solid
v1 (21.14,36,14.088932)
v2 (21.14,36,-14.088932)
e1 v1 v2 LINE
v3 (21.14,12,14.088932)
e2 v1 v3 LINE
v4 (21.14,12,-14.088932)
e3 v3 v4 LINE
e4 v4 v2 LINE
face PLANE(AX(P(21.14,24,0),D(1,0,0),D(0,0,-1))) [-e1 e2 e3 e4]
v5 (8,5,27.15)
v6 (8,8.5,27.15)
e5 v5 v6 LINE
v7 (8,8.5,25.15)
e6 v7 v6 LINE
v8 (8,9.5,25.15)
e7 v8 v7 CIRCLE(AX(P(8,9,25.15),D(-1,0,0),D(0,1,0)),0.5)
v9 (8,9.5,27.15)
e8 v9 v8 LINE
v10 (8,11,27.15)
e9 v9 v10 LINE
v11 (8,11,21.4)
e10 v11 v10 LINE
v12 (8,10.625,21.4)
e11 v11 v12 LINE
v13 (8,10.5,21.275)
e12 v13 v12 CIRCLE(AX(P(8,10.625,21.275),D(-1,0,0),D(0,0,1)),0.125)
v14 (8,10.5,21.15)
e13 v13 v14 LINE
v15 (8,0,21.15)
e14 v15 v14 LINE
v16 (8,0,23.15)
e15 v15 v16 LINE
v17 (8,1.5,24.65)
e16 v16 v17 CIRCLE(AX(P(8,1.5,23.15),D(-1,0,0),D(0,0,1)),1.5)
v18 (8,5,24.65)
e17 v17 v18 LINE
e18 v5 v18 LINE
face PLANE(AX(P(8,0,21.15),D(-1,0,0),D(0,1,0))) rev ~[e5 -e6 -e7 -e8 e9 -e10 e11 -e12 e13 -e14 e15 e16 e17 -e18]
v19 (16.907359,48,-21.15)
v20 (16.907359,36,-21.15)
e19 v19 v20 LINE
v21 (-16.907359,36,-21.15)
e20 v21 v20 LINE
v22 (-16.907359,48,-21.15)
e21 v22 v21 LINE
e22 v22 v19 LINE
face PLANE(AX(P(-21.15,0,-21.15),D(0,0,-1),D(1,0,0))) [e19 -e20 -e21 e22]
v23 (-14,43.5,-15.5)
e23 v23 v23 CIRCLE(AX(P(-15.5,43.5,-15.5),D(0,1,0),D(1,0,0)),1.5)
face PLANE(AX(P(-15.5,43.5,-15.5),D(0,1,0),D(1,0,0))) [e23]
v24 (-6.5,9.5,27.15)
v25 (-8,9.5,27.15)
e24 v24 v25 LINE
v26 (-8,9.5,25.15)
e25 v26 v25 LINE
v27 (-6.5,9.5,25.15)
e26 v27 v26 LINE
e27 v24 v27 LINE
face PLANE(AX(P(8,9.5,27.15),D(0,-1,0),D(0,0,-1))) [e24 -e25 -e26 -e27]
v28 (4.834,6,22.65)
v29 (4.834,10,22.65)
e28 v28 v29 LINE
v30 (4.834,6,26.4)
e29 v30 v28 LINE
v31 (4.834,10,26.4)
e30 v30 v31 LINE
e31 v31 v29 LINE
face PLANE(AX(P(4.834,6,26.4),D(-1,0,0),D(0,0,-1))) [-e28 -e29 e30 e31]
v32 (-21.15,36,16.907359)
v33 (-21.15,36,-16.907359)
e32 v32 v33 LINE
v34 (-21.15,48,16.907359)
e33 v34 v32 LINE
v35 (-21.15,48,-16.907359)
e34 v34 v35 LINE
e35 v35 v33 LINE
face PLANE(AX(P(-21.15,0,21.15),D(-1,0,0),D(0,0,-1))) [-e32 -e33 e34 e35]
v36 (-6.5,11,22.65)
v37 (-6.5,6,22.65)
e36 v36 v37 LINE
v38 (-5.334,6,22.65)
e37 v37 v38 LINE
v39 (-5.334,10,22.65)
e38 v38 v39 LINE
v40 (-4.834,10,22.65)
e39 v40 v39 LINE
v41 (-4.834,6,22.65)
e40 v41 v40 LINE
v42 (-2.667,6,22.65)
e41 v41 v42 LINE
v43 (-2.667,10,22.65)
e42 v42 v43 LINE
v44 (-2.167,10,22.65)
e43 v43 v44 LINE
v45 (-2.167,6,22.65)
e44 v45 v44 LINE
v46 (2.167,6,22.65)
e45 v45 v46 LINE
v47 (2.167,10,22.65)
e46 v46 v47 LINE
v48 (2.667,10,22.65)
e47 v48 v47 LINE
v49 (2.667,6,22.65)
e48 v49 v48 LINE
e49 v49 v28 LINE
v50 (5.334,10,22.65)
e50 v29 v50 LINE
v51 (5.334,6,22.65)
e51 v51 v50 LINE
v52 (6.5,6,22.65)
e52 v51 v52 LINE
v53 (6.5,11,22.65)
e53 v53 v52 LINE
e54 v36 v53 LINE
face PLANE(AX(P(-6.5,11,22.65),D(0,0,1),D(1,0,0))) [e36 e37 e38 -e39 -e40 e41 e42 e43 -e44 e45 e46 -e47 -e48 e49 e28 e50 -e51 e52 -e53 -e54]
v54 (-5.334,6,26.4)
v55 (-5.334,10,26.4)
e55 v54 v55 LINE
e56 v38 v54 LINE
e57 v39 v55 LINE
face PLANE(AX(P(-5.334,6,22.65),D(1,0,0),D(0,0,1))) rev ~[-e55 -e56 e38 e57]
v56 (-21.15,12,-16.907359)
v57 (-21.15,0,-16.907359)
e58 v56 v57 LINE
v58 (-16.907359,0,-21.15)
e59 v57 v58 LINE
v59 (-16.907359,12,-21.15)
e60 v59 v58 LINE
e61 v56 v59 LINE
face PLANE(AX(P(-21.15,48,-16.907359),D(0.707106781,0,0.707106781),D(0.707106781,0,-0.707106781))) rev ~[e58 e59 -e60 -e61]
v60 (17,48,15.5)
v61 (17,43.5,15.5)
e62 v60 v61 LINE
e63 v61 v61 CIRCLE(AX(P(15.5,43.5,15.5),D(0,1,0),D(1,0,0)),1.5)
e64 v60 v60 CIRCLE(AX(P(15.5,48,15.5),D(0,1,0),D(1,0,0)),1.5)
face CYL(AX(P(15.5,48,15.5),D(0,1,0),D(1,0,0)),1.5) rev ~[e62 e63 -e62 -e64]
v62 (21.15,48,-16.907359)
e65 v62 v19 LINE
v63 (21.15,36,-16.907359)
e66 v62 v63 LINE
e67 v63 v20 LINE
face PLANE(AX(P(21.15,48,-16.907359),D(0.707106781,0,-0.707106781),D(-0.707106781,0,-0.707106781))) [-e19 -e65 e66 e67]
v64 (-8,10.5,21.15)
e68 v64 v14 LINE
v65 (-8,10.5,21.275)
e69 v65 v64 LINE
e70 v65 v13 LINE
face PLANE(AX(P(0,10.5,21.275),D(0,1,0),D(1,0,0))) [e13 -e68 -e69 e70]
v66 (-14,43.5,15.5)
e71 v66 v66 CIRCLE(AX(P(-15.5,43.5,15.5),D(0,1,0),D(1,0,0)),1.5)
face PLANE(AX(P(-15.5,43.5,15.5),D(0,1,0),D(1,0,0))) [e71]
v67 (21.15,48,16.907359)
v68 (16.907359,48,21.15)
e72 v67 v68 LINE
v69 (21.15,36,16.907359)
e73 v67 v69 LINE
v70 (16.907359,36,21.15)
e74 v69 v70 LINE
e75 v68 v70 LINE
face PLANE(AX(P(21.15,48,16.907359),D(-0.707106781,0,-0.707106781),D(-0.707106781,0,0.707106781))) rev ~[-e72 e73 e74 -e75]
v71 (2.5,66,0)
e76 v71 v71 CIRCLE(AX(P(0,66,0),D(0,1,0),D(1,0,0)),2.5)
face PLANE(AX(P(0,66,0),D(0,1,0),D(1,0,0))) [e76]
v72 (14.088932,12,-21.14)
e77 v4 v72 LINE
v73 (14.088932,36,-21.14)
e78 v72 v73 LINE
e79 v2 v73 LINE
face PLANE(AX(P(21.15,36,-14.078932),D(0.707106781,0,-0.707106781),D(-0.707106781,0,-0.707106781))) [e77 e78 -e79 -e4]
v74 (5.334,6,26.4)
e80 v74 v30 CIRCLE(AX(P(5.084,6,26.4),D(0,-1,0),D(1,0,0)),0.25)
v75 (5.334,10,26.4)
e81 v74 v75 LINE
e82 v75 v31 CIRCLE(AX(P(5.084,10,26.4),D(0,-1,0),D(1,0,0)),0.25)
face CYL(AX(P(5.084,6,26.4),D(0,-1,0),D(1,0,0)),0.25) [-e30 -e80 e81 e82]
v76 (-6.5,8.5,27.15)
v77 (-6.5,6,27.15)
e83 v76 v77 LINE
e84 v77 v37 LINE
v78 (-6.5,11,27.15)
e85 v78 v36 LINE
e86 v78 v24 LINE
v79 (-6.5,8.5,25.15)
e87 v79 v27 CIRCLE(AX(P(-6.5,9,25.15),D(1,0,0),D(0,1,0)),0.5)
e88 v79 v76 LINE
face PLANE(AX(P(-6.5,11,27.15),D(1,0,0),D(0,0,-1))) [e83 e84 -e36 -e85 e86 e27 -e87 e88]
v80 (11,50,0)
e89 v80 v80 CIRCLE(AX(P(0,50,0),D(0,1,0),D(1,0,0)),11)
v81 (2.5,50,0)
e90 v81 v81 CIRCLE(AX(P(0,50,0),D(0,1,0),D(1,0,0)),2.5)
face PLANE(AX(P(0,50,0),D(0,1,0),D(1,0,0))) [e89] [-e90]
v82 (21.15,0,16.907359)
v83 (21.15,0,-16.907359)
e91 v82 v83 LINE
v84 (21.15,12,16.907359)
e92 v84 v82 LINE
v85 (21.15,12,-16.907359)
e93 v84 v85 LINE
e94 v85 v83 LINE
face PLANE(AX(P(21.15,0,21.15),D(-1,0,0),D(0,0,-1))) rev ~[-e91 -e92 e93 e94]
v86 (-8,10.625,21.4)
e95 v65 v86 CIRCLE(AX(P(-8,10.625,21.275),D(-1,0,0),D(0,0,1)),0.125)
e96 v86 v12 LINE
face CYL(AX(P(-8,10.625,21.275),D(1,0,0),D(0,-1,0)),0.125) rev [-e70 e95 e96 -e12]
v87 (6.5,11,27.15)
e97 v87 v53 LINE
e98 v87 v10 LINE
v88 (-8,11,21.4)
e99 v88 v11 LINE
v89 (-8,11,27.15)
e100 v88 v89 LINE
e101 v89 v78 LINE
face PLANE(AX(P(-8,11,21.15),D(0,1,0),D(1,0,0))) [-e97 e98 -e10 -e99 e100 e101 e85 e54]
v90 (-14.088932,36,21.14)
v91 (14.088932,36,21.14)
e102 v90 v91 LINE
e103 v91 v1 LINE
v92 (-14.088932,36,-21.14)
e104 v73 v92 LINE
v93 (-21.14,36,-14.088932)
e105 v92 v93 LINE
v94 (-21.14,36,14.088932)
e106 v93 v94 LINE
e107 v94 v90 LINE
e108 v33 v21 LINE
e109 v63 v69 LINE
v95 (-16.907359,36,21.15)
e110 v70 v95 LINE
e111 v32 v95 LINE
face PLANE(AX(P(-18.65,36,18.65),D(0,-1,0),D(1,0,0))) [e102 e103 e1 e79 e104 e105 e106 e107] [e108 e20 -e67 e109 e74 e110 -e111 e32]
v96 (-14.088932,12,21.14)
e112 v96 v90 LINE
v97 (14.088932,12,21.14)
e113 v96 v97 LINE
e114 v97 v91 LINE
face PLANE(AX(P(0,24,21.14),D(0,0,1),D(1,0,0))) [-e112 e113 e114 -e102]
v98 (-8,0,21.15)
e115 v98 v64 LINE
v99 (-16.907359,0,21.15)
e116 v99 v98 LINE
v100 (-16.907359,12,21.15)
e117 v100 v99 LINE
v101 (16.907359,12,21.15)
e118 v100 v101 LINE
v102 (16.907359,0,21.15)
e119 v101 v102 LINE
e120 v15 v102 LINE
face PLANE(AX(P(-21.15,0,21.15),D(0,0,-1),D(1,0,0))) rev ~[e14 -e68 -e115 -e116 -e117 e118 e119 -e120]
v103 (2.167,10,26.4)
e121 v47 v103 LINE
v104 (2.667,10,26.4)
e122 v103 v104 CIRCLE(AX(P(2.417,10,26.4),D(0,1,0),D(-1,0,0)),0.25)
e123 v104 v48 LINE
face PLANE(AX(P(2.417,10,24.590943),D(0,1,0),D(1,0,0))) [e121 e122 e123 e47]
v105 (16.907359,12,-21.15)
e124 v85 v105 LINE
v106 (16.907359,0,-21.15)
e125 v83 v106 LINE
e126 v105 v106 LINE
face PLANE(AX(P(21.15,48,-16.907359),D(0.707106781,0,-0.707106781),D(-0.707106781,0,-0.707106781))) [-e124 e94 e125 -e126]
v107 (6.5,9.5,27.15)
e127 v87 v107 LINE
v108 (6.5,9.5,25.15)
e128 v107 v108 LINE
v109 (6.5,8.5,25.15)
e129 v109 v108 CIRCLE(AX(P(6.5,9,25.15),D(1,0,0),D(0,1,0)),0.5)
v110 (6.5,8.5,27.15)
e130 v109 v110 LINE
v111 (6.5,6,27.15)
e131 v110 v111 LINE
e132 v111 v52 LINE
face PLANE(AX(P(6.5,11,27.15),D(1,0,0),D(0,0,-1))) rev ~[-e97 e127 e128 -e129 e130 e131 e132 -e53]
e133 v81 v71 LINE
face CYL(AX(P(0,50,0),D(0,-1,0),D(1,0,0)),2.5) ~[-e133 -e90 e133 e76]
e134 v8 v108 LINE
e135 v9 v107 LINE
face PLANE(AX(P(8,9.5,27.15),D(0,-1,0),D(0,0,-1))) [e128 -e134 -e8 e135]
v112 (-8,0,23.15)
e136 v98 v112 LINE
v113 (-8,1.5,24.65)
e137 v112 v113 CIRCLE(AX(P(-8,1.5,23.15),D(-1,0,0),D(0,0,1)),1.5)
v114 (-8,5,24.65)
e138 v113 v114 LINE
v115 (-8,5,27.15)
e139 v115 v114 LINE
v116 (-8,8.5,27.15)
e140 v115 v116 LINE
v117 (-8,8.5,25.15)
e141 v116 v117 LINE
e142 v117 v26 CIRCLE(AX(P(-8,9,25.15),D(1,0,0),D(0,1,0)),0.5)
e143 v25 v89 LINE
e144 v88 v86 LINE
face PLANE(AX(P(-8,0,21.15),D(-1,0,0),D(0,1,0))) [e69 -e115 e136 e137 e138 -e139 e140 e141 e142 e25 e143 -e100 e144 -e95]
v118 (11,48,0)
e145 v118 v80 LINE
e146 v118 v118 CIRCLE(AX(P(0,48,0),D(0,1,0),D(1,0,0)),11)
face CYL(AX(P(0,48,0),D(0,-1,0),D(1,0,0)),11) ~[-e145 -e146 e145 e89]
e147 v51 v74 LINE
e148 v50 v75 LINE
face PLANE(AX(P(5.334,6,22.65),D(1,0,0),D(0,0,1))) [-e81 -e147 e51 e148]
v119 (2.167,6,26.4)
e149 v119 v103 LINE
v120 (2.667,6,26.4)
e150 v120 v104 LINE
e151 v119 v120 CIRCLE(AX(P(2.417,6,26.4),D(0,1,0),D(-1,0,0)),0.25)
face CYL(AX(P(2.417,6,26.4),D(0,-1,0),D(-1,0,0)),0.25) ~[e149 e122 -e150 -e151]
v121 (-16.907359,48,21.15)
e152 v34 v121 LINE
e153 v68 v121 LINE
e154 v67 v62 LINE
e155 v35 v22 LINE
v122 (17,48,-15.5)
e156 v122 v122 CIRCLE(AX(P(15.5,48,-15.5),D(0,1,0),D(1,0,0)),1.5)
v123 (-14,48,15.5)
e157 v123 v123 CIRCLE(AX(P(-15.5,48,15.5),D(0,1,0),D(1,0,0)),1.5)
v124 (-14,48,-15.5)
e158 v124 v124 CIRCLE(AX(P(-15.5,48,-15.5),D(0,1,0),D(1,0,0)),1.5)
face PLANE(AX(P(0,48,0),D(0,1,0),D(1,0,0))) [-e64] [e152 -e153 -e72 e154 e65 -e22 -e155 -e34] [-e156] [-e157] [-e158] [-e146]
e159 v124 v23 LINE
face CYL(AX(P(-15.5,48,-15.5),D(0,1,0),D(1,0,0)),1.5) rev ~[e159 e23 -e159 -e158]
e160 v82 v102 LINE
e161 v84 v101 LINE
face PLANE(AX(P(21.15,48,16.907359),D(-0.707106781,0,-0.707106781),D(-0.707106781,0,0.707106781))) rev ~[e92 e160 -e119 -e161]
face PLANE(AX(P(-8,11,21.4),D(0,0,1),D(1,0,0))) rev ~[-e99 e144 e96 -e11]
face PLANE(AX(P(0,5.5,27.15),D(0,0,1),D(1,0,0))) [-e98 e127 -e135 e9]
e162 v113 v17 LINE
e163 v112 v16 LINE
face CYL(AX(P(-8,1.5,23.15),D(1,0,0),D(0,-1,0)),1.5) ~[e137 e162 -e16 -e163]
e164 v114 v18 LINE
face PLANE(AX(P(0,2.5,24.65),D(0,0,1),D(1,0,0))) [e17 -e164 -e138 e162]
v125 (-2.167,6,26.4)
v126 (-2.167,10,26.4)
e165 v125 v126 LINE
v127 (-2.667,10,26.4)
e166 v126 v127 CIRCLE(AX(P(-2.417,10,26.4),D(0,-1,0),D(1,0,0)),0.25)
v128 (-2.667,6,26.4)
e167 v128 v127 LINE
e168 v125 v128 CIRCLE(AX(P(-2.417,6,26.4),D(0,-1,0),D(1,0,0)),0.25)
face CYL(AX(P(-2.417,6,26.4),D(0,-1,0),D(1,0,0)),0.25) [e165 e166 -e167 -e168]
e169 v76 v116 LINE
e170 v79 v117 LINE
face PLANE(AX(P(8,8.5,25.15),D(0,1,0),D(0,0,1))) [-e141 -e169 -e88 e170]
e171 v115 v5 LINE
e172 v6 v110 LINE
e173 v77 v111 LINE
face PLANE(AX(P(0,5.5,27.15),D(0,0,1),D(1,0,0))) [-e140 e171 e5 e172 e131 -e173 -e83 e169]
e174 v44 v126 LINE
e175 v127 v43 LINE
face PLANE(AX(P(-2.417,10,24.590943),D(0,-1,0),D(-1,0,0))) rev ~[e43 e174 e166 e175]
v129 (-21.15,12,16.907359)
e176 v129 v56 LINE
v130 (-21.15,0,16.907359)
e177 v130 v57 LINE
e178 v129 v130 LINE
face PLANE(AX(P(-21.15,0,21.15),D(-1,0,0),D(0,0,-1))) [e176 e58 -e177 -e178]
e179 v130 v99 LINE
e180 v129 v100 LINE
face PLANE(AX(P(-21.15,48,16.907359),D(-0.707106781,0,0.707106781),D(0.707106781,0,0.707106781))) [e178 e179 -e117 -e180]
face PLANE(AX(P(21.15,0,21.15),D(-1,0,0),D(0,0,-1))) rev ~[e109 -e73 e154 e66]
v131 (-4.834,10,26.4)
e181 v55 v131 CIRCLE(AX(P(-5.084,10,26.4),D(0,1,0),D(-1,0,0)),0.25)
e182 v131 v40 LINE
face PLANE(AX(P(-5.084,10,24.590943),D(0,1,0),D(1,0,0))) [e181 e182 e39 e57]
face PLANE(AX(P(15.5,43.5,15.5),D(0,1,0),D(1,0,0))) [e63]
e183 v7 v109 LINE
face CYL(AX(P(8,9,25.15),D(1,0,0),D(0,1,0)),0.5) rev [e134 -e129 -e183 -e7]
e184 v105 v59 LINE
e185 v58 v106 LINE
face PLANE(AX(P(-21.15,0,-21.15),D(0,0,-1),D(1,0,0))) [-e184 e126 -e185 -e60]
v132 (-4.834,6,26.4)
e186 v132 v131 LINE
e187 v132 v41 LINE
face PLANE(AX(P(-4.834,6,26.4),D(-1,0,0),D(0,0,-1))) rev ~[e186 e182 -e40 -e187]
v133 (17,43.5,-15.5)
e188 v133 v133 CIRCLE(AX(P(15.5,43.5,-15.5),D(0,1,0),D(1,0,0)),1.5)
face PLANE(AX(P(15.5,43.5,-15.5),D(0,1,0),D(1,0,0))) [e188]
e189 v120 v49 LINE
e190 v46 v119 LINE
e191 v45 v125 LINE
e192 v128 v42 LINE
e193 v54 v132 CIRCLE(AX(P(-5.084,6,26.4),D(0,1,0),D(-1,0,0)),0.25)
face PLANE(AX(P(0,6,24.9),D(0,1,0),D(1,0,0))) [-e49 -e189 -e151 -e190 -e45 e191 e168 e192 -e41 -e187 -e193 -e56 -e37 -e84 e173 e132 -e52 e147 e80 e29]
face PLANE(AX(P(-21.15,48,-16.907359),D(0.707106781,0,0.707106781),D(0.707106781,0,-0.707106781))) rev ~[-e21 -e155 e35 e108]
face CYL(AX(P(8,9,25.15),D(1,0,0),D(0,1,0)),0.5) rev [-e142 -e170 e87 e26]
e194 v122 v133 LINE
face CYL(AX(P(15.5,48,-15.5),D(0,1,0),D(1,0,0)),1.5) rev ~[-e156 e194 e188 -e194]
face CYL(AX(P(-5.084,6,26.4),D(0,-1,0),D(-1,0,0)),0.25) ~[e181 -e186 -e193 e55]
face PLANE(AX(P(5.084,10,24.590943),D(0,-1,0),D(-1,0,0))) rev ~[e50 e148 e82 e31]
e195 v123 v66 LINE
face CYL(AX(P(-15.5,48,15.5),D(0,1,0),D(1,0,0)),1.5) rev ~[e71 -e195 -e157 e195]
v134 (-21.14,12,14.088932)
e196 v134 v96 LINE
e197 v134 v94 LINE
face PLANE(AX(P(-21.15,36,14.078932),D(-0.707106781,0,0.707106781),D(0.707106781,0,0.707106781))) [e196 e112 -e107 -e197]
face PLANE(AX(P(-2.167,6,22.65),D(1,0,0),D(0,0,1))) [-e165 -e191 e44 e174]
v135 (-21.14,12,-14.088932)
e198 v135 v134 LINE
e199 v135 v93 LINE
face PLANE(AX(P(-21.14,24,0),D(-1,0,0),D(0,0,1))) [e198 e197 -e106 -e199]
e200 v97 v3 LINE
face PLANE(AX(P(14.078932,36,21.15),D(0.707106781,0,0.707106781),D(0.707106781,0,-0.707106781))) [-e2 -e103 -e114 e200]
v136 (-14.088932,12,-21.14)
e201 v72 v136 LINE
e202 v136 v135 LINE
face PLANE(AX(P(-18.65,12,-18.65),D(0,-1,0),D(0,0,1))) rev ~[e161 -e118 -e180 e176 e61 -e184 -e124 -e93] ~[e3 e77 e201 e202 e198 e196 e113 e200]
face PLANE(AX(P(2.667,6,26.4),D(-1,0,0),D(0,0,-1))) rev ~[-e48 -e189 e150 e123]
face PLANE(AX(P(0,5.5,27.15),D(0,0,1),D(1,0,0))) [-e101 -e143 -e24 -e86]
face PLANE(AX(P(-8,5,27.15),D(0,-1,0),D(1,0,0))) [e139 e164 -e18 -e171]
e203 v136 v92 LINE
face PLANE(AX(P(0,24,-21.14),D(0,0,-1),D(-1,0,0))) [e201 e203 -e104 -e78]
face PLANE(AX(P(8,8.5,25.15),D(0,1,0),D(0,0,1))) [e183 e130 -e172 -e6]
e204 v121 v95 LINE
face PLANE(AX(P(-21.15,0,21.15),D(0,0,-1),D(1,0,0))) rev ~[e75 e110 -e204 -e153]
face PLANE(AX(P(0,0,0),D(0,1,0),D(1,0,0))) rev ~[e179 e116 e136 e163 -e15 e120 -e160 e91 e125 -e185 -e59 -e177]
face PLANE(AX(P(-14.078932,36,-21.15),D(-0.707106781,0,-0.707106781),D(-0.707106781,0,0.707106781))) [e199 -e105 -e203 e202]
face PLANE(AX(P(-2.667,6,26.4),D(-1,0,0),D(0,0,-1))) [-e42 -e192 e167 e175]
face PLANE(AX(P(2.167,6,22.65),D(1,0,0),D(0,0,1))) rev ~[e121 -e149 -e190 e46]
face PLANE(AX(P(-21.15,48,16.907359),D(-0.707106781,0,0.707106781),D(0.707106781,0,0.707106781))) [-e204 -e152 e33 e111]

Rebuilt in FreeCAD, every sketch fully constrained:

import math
import FreeCAD as App
import Part
import Sketcher
Q = App.Units.Quantity


def edges_at(feature, points):
    """Names of the edges that pass closest to the given points."""
    edges = feature.Shape.Edges
    near = lambda p: min(range(len(edges)), key=lambda i: edges[i].distToShape(Part.Vertex(*p))[0])
    return sorted({f"Edge{near(p) + 1}" for p in points})

doc = App.newDocument("Part")
body = doc.addObject("PartDesign::Body", "Body")

# Sketch on XZ plane
sketch1 = doc.addObject("Sketcher::SketchObject", "Sketch")
body.addObject(sketch1)
sketch1.AttachmentSupport = (doc.XZ_Plane, [""])
sketch1.MapMode = "FlatFace"
sketch1.addGeometry([
    Part.LineSegment(App.Vector(-21.15, -21.15, 0), App.Vector(-21.15, 21.15, 0)),
    Part.LineSegment(App.Vector(-21.15, 21.15, 0), App.Vector(21.15, 21.15, 0)),
    Part.LineSegment(App.Vector(21.15, 21.15, 0), App.Vector(21.15, -21.15, 0)),
    Part.LineSegment(App.Vector(21.15, -21.15, 0), App.Vector(-21.15, -21.15, 0)),
], False)
sketch1.addConstraint([
    Sketcher.Constraint("Coincident", 0, 2, 1, 1),
    Sketcher.Constraint("Coincident", 1, 2, 2, 1),
    Sketcher.Constraint("Coincident", 2, 2, 3, 1),
    Sketcher.Constraint("Coincident", 3, 2, 0, 1),
    Sketcher.Constraint("Vertical", 0),
    Sketcher.Constraint("Horizontal", 1),
    Sketcher.Constraint("Vertical", 2),
    Sketcher.Constraint("Horizontal", 3),
    Sketcher.Constraint("Symmetric", 0, 2, 2, 2, -1, 1),
    Sketcher.Constraint("Equal", 3, 0),
    Sketcher.Constraint("DistanceX", 1, 1, 1, 2, Q("42.3 mm")),
])
pad1 = doc.addObject("PartDesign::Pad", "Pad")
body.addObject(pad1)
pad1.Profile = sketch1
pad1.Length = 48
pad1.Reversed = True

# Sketch on XZ plane
sketch2 = doc.addObject("Sketcher::SketchObject", "Sketch001")
body.addObject(sketch2)
sketch2.AttachmentSupport = (doc.XZ_Plane, [""])
sketch2.MapMode = "FlatFace"
sketch2.AttachmentOffset = App.Placement(App.Vector(0, 0, -48), App.Rotation())
sketch2.addGeometry(Part.Circle(App.Vector(0, 0, 0), App.Vector(0, 0, 1), 11), False)
sketch2.addConstraint([
    Sketcher.Constraint("Coincident", 0, 3, -1, 1),
    Sketcher.Constraint("Diameter", 0, Q("22 mm")),
])
pad2 = doc.addObject("PartDesign::Pad", "Pad001")
body.addObject(pad2)
pad2.Profile = sketch2
pad2.Length = 2
pad2.Reversed = True

# Sketch on XZ plane
sketch3 = doc.addObject("Sketcher::SketchObject", "Sketch002")
body.addObject(sketch3)
sketch3.AttachmentSupport = (doc.XZ_Plane, [""])
sketch3.MapMode = "FlatFace"
sketch3.AttachmentOffset = App.Placement(App.Vector(0, 0, -50), App.Rotation())
sketch3.addGeometry(Part.Circle(App.Vector(0, 0, 0), App.Vector(0, 0, 1), 2.5), False)
sketch3.addConstraint([
    Sketcher.Constraint("Coincident", 0, 3, -1, 1),
    Sketcher.Constraint("Diameter", 0, Q("5 mm")),
])
pad3 = doc.addObject("PartDesign::Pad", "Pad002")
body.addObject(pad3)
pad3.Profile = sketch3
pad3.Length = 16
pad3.Reversed = True

# Sketch on XZ plane
sketch4 = doc.addObject("Sketcher::SketchObject", "Sketch003")
body.addObject(sketch4)
sketch4.AttachmentSupport = (doc.XZ_Plane, [""])
sketch4.MapMode = "FlatFace"
sketch4.AttachmentOffset = App.Placement(App.Vector(0, 0, -48), App.Rotation())
sketch4.addGeometry([
    Part.LineSegment(App.Vector(-21.15, -16.907359, 0), App.Vector(-16.907359, -21.15, 0)),  # 0
    Part.LineSegment(App.Vector(-16.907359, -21.15, 0), App.Vector(-21.15, -21.15, 0)),  # 1
    Part.LineSegment(App.Vector(-21.15, -21.15, 0), App.Vector(-21.15, -16.907359, 0)),  # 2
    Part.LineSegment(App.Vector(21.15, -16.907359, 0), App.Vector(21.15, -21.15, 0)),  # 3
    Part.LineSegment(App.Vector(21.15, -21.15, 0), App.Vector(16.907359, -21.15, 0)),  # 4
    Part.LineSegment(App.Vector(16.907359, -21.15, 0), App.Vector(21.15, -16.907359, 0)),  # 5
    Part.LineSegment(App.Vector(21.15, 16.907359, 0), App.Vector(16.907359, 21.15, 0)),  # 6
    Part.LineSegment(App.Vector(16.907359, 21.15, 0), App.Vector(21.15, 21.15, 0)),  # 7
    Part.LineSegment(App.Vector(21.15, 21.15, 0), App.Vector(21.15, 16.907359, 0)),  # 8
    Part.LineSegment(App.Vector(-21.15, 16.907359, 0), App.Vector(-21.15, 21.15, 0)),  # 9
    Part.LineSegment(App.Vector(-21.15, 21.15, 0), App.Vector(-16.907359, 21.15, 0)),  # 10
    Part.LineSegment(App.Vector(-16.907359, 21.15, 0), App.Vector(-21.15, 16.907359, 0)),  # 11
], False)
sketch4.addConstraint([
    Sketcher.Constraint("Coincident", 0, 2, 1, 1),
    Sketcher.Constraint("Coincident", 1, 2, 2, 1),
    Sketcher.Constraint("Coincident", 2, 2, 0, 1),
    Sketcher.Constraint("Coincident", 3, 2, 4, 1),
    Sketcher.Constraint("Coincident", 4, 2, 5, 1),
    Sketcher.Constraint("Coincident", 5, 2, 3, 1),
    Sketcher.Constraint("Coincident", 6, 2, 7, 1),
    Sketcher.Constraint("Coincident", 7, 2, 8, 1),
    Sketcher.Constraint("Coincident", 8, 2, 6, 1),
    Sketcher.Constraint("Coincident", 9, 2, 10, 1),
    Sketcher.Constraint("Coincident", 10, 2, 11, 1),
    Sketcher.Constraint("Coincident", 11, 2, 9, 1),
    Sketcher.Constraint("Horizontal", 1),
    Sketcher.Constraint("Vertical", 2),
    Sketcher.Constraint("Vertical", 3),
    Sketcher.Constraint("Horizontal", 4),
    Sketcher.Constraint("Horizontal", 7),
    Sketcher.Constraint("Vertical", 8),
    Sketcher.Constraint("Vertical", 9),
    Sketcher.Constraint("Horizontal", 10),
    Sketcher.Constraint("Symmetric", 0, 2, 6, 2, -1, 1),
    Sketcher.Constraint("Symmetric", 2, 2, 8, 2, -1, 1),
    Sketcher.Constraint("Symmetric", 3, 2, 9, 2, -1, 1),
    Sketcher.Constraint("Symmetric", 1, 2, 3, 2, -2),
    Sketcher.Constraint("Perpendicular", 0, 5),
    Sketcher.Constraint("Perpendicular", 6, 11),
    Sketcher.Constraint("Horizontal", 2, 2, 5, 2),
    Sketcher.Constraint("Horizontal", 8, 2, 11, 2),
    Sketcher.Constraint("Vertical", 4, 2, 6, 2),
    Sketcher.Constraint("Distance", 0, Q("6 mm")),
    Sketcher.Constraint("DistanceX", 1, 2, 3, 2, Q("42.3 mm")),
    Sketcher.Constraint("DistanceY", 4, 2, 6, 2, Q("42.3 mm")),
])
pocket1 = doc.addObject("PartDesign::Pocket", "Pocket")
body.addObject(pocket1)
pocket1.Profile = sketch4
pocket1.Type = "ThroughAll"
pocket1.Midplane = True

# Sketch on YZ plane
sketch5 = doc.addObject("Sketcher::SketchObject", "Sketch004")
body.addObject(sketch5)
sketch5.AttachmentSupport = (doc.YZ_Plane, [""])
sketch5.MapMode = "FlatFace"
sketch5.AttachmentOffset = App.Placement(App.Vector(0, 0, 21.15), App.Rotation())
sketch5.addGeometry([
    Part.LineSegment(App.Vector(36, 16.907359, 0), App.Vector(12, 16.907359, 0)),
    Part.LineSegment(App.Vector(12, 16.907359, 0), App.Vector(12, -16.907359, 0)),
    Part.LineSegment(App.Vector(12, -16.907359, 0), App.Vector(36, -16.907359, 0)),
    Part.LineSegment(App.Vector(36, -16.907359, 0), App.Vector(36, 16.907359, 0)),
], False)
sketch5.addConstraint([
    Sketcher.Constraint("Coincident", 0, 2, 1, 1),
    Sketcher.Constraint("Coincident", 1, 2, 2, 1),
    Sketcher.Constraint("Coincident", 2, 2, 3, 1),
    Sketcher.Constraint("Coincident", 3, 2, 0, 1),
    Sketcher.Constraint("Horizontal", 0),
    Sketcher.Constraint("Vertical", 1),
    Sketcher.Constraint("Horizontal", 2),
    Sketcher.Constraint("Vertical", 3),
    Sketcher.Constraint("DistanceX", 0, 2, 0, 1, Q("24 mm")),
    Sketcher.Constraint("DistanceX", -1, 1, 0, 2, Q("12 mm")),
    Sketcher.Constraint("DistanceY", 1, 2, 1, 1, Q("33.814719 mm")),
    Sketcher.Constraint("DistanceY", -1, 1, 0, 2, Q("16.907359 mm")),
])
pocket2 = doc.addObject("PartDesign::Pocket", "Pocket001")
body.addObject(pocket2)
pocket2.Profile = sketch5
pocket2.Length = 0.01

# Sketch on XZ plane
sketch6 = doc.addObject("Sketcher::SketchObject", "Sketch005")
body.addObject(sketch6)
sketch6.AttachmentSupport = (doc.XZ_Plane, [""])
sketch6.MapMode = "FlatFace"
sketch6.AttachmentOffset = App.Placement(App.Vector(0, 0, -36), App.Rotation())
sketch6.addGeometry([
    Part.LineSegment(App.Vector(14.078932, -21.15, 0), App.Vector(21.15, -14.078932, 0)),
    Part.LineSegment(App.Vector(21.15, -14.078932, 0), App.Vector(21.15, -21.15, 0)),
    Part.LineSegment(App.Vector(21.15, -21.15, 0), App.Vector(14.078932, -21.15, 0)),
], False)
sketch6.addConstraint([
    Sketcher.Constraint("Coincident", 0, 2, 1, 1),
    Sketcher.Constraint("Coincident", 1, 2, 2, 1),
    Sketcher.Constraint("Coincident", 2, 2, 0, 1),
    Sketcher.Constraint("Vertical", 1),
    Sketcher.Constraint("Horizontal", 2),
    Sketcher.Constraint("Equal", 2, 1),
    Sketcher.Constraint("Distance", 0, Q("10 mm")),
    Sketcher.Constraint("DistanceX", -1, 1, 0, 2, Q("21.15 mm")),
    Sketcher.Constraint("DistanceY", 1, 2, -1, 1, Q("21.15 mm")),
])
pocket3 = doc.addObject("PartDesign::Pocket", "Pocket002")
body.addObject(pocket3)
pocket3.Profile = sketch6
pocket3.Length = 24
pocket3.Reversed = True
doc.recompute()

polarpattern = doc.addObject("PartDesign::PolarPattern", "PolarPattern")
body.addObject(polarpattern)
polarpattern.Originals = [pocket2, pocket3]
polarpattern.Axis = (doc.Y_Axis, [""])
polarpattern.Angle = 360
polarpattern.Occurrences = 4
body.Tip = polarpattern

# Sketch on XZ plane
sketch7 = doc.addObject("Sketcher::SketchObject", "Sketch006")
body.addObject(sketch7)
sketch7.AttachmentSupport = (doc.XZ_Plane, [""])
sketch7.MapMode = "FlatFace"
sketch7.AttachmentOffset = App.Placement(App.Vector(0, 0, -48), App.Rotation())
sketch7.addGeometry([
    Part.Circle(App.Vector(15.5, -15.5, 0), App.Vector(0, 0, 1), 1.5),
    Part.Circle(App.Vector(15.5, 15.5, 0), App.Vector(0, 0, 1), 1.5),
    Part.Circle(App.Vector(-15.5, 15.5, 0), App.Vector(0, 0, 1), 1.5),
    Part.Circle(App.Vector(-15.5, -15.5, 0), App.Vector(0, 0, 1), 1.5),
], False)
sketch7.addConstraint([
    Sketcher.Constraint("Equal", 0, 1),
    Sketcher.Constraint("Equal", 1, 2),
    Sketcher.Constraint("Equal", 2, 3),
    Sketcher.Constraint("Symmetric", 0, 3, 2, 3, -1, 1),
    Sketcher.Constraint("Symmetric", 1, 3, 3, 3, -1, 1),
    Sketcher.Constraint("Symmetric", 1, 3, 2, 3, -2),
    Sketcher.Constraint("Diameter", 0, Q("3 mm")),
    Sketcher.Constraint("DistanceY", 0, 3, 1, 3, Q("31 mm")),
    Sketcher.Constraint("DistanceX", 2, 3, 1, 3, Q("31 mm")),
])
pocket4 = doc.addObject("PartDesign::Pocket", "Pocket003")
body.addObject(pocket4)
pocket4.Profile = sketch7
pocket4.Length = 4.5
pocket4.Reversed = True

# Sketch on XY plane
sketch8 = doc.addObject("Sketcher::SketchObject", "Sketch007")
body.addObject(sketch8)
sketch8.AttachmentSupport = (doc.XY_Plane, [""])
sketch8.MapMode = "FlatFace"
sketch8.AttachmentOffset = App.Placement(App.Vector(0, 0, 21.15), App.Rotation())
sketch8.addGeometry([
    Part.LineSegment(App.Vector(-8, 11, 0), App.Vector(-8, 0, 0)),
    Part.LineSegment(App.Vector(-8, 0, 0), App.Vector(8, 0, 0)),
    Part.LineSegment(App.Vector(8, 0, 0), App.Vector(8, 11, 0)),
    Part.LineSegment(App.Vector(8, 11, 0), App.Vector(-8, 11, 0)),
], False)
sketch8.addConstraint([
    Sketcher.Constraint("Coincident", 0, 2, 1, 1),
    Sketcher.Constraint("Coincident", 1, 2, 2, 1),
    Sketcher.Constraint("Coincident", 2, 2, 3, 1),
    Sketcher.Constraint("Coincident", 3, 2, 0, 1),
    Sketcher.Constraint("Vertical", 0),
    Sketcher.Constraint("Horizontal", 1),
    Sketcher.Constraint("Vertical", 2),
    Sketcher.Constraint("Horizontal", 3),
    Sketcher.Constraint("Symmetric", 0, 2, 1, 2, -1, 1),
    Sketcher.Constraint("DistanceX", 1, 1, 1, 2, Q("16 mm")),
    Sketcher.Constraint("DistanceY", 0, 2, 0, 1, Q("11 mm")),
])
pad4 = doc.addObject("PartDesign::Pad", "Pad003")
body.addObject(pad4)
pad4.Profile = sketch8
pad4.Length = 6

# Sketch on XY plane
sketch9 = doc.addObject("Sketcher::SketchObject", "Sketch008")
body.addObject(sketch9)
sketch9.AttachmentSupport = (doc.XY_Plane, [""])
sketch9.MapMode = "FlatFace"
sketch9.AttachmentOffset = App.Placement(App.Vector(0, 0, 27.15), App.Rotation())
sketch9.addGeometry([
    Part.LineSegment(App.Vector(-8, 5, 0), App.Vector(-8, 0, 0)),
    Part.LineSegment(App.Vector(-8, 0, 0), App.Vector(8, 0, 0)),
    Part.LineSegment(App.Vector(8, 0, 0), App.Vector(8, 5, 0)),
    Part.LineSegment(App.Vector(8, 5, 0), App.Vector(-8, 5, 0)),
], False)
sketch9.addConstraint([
    Sketcher.Constraint("Coincident", 0, 2, 1, 1),
    Sketcher.Constraint("Coincident", 1, 2, 2, 1),
    Sketcher.Constraint("Coincident", 2, 2, 3, 1),
    Sketcher.Constraint("Coincident", 3, 2, 0, 1),
    Sketcher.Constraint("Vertical", 0),
    Sketcher.Constraint("Horizontal", 1),
    Sketcher.Constraint("Vertical", 2),
    Sketcher.Constraint("Horizontal", 3),
    Sketcher.Constraint("Symmetric", 0, 2, 1, 2, -1, 1),
    Sketcher.Constraint("DistanceX", 1, 1, 1, 2, Q("16 mm")),
    Sketcher.Constraint("DistanceY", 0, 2, 0, 1, Q("5 mm")),
])
pocket5 = doc.addObject("PartDesign::Pocket", "Pocket004")
body.addObject(pocket5)
pocket5.Profile = sketch9
pocket5.Length = 2.5
doc.recompute()

fillet = doc.addObject("PartDesign::Fillet", "Fillet")
body.addObject(fillet)
fillet.Base = (pocket5, edges_at(pocket5, [(0, 0, 24.65)]))
fillet.Radius = 1.5

# Sketch on XZ plane
sketch10 = doc.addObject("Sketcher::SketchObject", "Sketch009")
body.addObject(sketch10)
sketch10.AttachmentSupport = (doc.XZ_Plane, [""])
sketch10.MapMode = "FlatFace"
sketch10.AttachmentOffset = App.Placement(App.Vector(0, 0, -11), App.Rotation())
sketch10.addGeometry([
    Part.LineSegment(App.Vector(-6.5, 22.65, 0), App.Vector(-6.5, 27.15, 0)),
    Part.LineSegment(App.Vector(-6.5, 27.15, 0), App.Vector(6.5, 27.15, 0)),
    Part.LineSegment(App.Vector(6.5, 27.15, 0), App.Vector(6.5, 22.65, 0)),
    Part.LineSegment(App.Vector(6.5, 22.65, 0), App.Vector(-6.5, 22.65, 0)),
], False)
sketch10.addConstraint([
    Sketcher.Constraint("Coincident", 0, 2, 1, 1),
    Sketcher.Constraint("Coincident", 1, 2, 2, 1),
    Sketcher.Constraint("Coincident", 2, 2, 3, 1),
    Sketcher.Constraint("Coincident", 3, 2, 0, 1),
    Sketcher.Constraint("Vertical", 0),
    Sketcher.Constraint("Horizontal", 1),
    Sketcher.Constraint("Vertical", 2),
    Sketcher.Constraint("Horizontal", 3),
    Sketcher.Constraint("DistanceX", 1, 1, 1, 2, Q("13 mm")),
    Sketcher.Constraint("DistanceY", 0, 1, 0, 2, Q("4.5 mm")),
    Sketcher.Constraint("DistanceX", 0, 2, -1, 1, Q("6.5 mm")),
    Sketcher.Constraint("DistanceY", -1, 1, 0, 2, Q("27.15 mm")),
])
pocket6 = doc.addObject("PartDesign::Pocket", "Pocket005")
body.addObject(pocket6)
pocket6.Profile = sketch10
pocket6.Length = 5
pocket6.Reversed = True

# Sketch on YZ plane
sketch11 = doc.addObject("Sketcher::SketchObject", "Sketch010")
body.addObject(sketch11)
sketch11.AttachmentSupport = (doc.YZ_Plane, [""])
sketch11.MapMode = "FlatFace"
sketch11.AttachmentOffset = App.Placement(App.Vector(0, 0, 8), App.Rotation())
sketch11.addGeometry([
    Part.LineSegment(App.Vector(9.5, 25.15, 0), App.Vector(9.5, 27.15, 0)),
    Part.LineSegment(App.Vector(9.5, 27.15, 0), App.Vector(8.5, 27.15, 0)),
    Part.LineSegment(App.Vector(8.5, 27.15, 0), App.Vector(8.5, 25.15, 0)),
    Part.ArcOfCircle(Part.Circle(App.Vector(9, 25.15, 0), App.Vector(0, 0, 1), 0.5), math.radians(180), math.radians(360)),
], False)
sketch11.addConstraint([
    Sketcher.Constraint("Coincident", 0, 2, 1, 1),
    Sketcher.Constraint("Coincident", 1, 2, 2, 1),
    Sketcher.Constraint("Tangent", 2, 2, 3, 1),
    Sketcher.Constraint("Tangent", 3, 2, 0, 1),
    Sketcher.Constraint("Vertical", 0),
    Sketcher.Constraint("Horizontal", 1),
    Sketcher.Constraint("Vertical", 2),
    Sketcher.Constraint("Radius", 3, Q("0.5 mm")),
    Sketcher.Constraint("DistanceY", 0, 1, 0, 2, Q("2 mm")),
    Sketcher.Constraint("DistanceX", -1, 1, 3, 3, Q("9 mm")),
    Sketcher.Constraint("DistanceY", -1, 1, 3, 3, Q("25.15 mm")),
])
pocket7 = doc.addObject("PartDesign::Pocket", "Pocket006")
body.addObject(pocket7)
pocket7.Profile = sketch11
pocket7.Type = "ThroughAll"

# Sketch on XZ plane
sketch12 = doc.addObject("Sketcher::SketchObject", "Sketch011")
body.addObject(sketch12)
sketch12.AttachmentSupport = (doc.XZ_Plane, [""])
sketch12.MapMode = "FlatFace"
sketch12.AttachmentOffset = App.Placement(App.Vector(0, 0, -6), App.Rotation())
sketch12.addGeometry([
    Part.LineSegment(App.Vector(-2.167, 22.65, 0), App.Vector(-2.667, 22.65, 0)),  # 0
    Part.LineSegment(App.Vector(-2.667, 22.65, 0), App.Vector(-2.667, 26.4, 0)),  # 1
    Part.ArcOfCircle(Part.Circle(App.Vector(-2.417, 26.4, 0), App.Vector(0, 0, 1), 0.25), math.radians(0), math.radians(180)),  # 2
    Part.LineSegment(App.Vector(-2.167, 26.4, 0), App.Vector(-2.167, 22.65, 0)),  # 3
    Part.LineSegment(App.Vector(5.334, 26.4, 0), App.Vector(5.334, 22.65, 0)),  # 4
    Part.LineSegment(App.Vector(5.334, 22.65, 0), App.Vector(4.834, 22.65, 0)),  # 5
    Part.LineSegment(App.Vector(4.834, 22.65, 0), App.Vector(4.834, 26.4, 0)),  # 6
    Part.ArcOfCircle(Part.Circle(App.Vector(5.084, 26.4, 0), App.Vector(0, 0, 1), 0.25), math.radians(0), math.radians(180)),  # 7
    Part.LineSegment(App.Vector(-4.834, 22.65, 0), App.Vector(-5.334, 22.65, 0)),  # 8
    Part.LineSegment(App.Vector(-5.334, 22.65, 0), App.Vector(-5.334, 26.4, 0)),  # 9
    Part.ArcOfCircle(Part.Circle(App.Vector(-5.084, 26.4, 0), App.Vector(0, 0, 1), 0.25), math.radians(0), math.radians(180)),  # 10
    Part.LineSegment(App.Vector(-4.834, 26.4, 0), App.Vector(-4.834, 22.65, 0)),  # 11
    Part.LineSegment(App.Vector(2.167, 22.65, 0), App.Vector(2.167, 26.4, 0)),  # 12
    Part.ArcOfCircle(Part.Circle(App.Vector(2.417, 26.4, 0), App.Vector(0, 0, 1), 0.25), math.radians(0), math.radians(180)),  # 13
    Part.LineSegment(App.Vector(2.667, 26.4, 0), App.Vector(2.667, 22.65, 0)),  # 14
    Part.LineSegment(App.Vector(2.667, 22.65, 0), App.Vector(2.167, 22.65, 0)),  # 15
], False)
sketch12.addConstraint([
    Sketcher.Constraint("Coincident", 0, 2, 1, 1),
    Sketcher.Constraint("Tangent", 1, 2, 2, 2),
    Sketcher.Constraint("Tangent", 2, 1, 3, 1),
    Sketcher.Constraint("Coincident", 3, 2, 0, 1),
    Sketcher.Constraint("Coincident", 4, 2, 5, 1),
    Sketcher.Constraint("Coincident", 5, 2, 6, 1),
    Sketcher.Constraint("Tangent", 6, 2, 7, 2),
    Sketcher.Constraint("Tangent", 7, 1, 4, 1),
    Sketcher.Constraint("Coincident", 8, 2, 9, 1),
    Sketcher.Constraint("Tangent", 9, 2, 10, 2),
    Sketcher.Constraint("Tangent", 10, 1, 11, 1),
    Sketcher.Constraint("Coincident", 11, 2, 8, 1),
    Sketcher.Constraint("Tangent", 12, 2, 13, 2),
    Sketcher.Constraint("Tangent", 13, 1, 14, 1),
    Sketcher.Constraint("Coincident", 14, 2, 15, 1),
    Sketcher.Constraint("Coincident", 15, 2, 12, 1),
    Sketcher.Constraint("Horizontal", 0),
    Sketcher.Constraint("Vertical", 1),
    Sketcher.Constraint("Vertical", 3),
    Sketcher.Constraint("Vertical", 4),
    Sketcher.Constraint("Horizontal", 5),
    Sketcher.Constraint("Vertical", 6),
    Sketcher.Constraint("Horizontal", 8),
    Sketcher.Constraint("Vertical", 9),
    Sketcher.Constraint("Vertical", 11),
    Sketcher.Constraint("Vertical", 12),
    Sketcher.Constraint("Vertical", 14),
    Sketcher.Constraint("Horizontal", 15),
    Sketcher.Constraint("Equal", 2, 7),
    Sketcher.Constraint("Equal", 7, 10),
    Sketcher.Constraint("Equal", 10, 13),
    Sketcher.Constraint("Symmetric", 7, 3, 10, 3, -2),
    Sketcher.Constraint("Symmetric", 2, 3, 13, 3, -2),
    Sketcher.Constraint("Horizontal", 2, 3, 7, 3),
    Sketcher.Constraint("Horizontal", 3, 2, 4, 2),
    Sketcher.Constraint("Horizontal", 5, 2, 8, 2),
    Sketcher.Constraint("Horizontal", 11, 2, 14, 2),
    Sketcher.Constraint("Radius", 2, Q("0.25 mm")),
    Sketcher.Constraint("DistanceY", 1, 1, 1, 2, Q("3.75 mm")),
    Sketcher.Constraint("DistanceY", -1, 1, 2, 3, Q("26.4 mm")),
    Sketcher.Constraint("DistanceX", 2, 3, -1, 1, Q("2.417 mm")),
    Sketcher.Constraint("DistanceX", -1, 1, 7, 3, Q("5.084 mm")),
])
pad5 = doc.addObject("PartDesign::Pad", "Pad004")
body.addObject(pad5)
pad5.Profile = sketch12
pad5.Length = 4
pad5.Reversed = True

# Sketch on XZ plane
sketch13 = doc.addObject("Sketcher::SketchObject", "Sketch012")
body.addObject(sketch13)
sketch13.AttachmentSupport = (doc.XZ_Plane, [""])
sketch13.MapMode = "FlatFace"
sketch13.AttachmentOffset = App.Placement(App.Vector(0, 0, -11), App.Rotation())
sketch13.addGeometry([
    Part.LineSegment(App.Vector(-8, 21.15, 0), App.Vector(-8, 21.4, 0)),
    Part.LineSegment(App.Vector(-8, 21.4, 0), App.Vector(8, 21.4, 0)),
    Part.LineSegment(App.Vector(8, 21.4, 0), App.Vector(8, 21.15, 0)),
    Part.LineSegment(App.Vector(8, 21.15, 0), App.Vector(-8, 21.15, 0)),
], False)
sketch13.addConstraint([
    Sketcher.Constraint("Coincident", 0, 2, 1, 1),
    Sketcher.Constraint("Coincident", 1, 2, 2, 1),
    Sketcher.Constraint("Coincident", 2, 2, 3, 1),
    Sketcher.Constraint("Coincident", 3, 2, 0, 1),
    Sketcher.Constraint("Vertical", 0),
    Sketcher.Constraint("Horizontal", 1),
    Sketcher.Constraint("Vertical", 2),
    Sketcher.Constraint("Horizontal", 3),
    Sketcher.Constraint("DistanceX", 1, 1, 1, 2, Q("16 mm")),
    Sketcher.Constraint("DistanceX", 0, 2, -1, 1, Q("8 mm")),
    Sketcher.Constraint("DistanceY", 0, 1, 0, 2, Q("0.25 mm")),
    Sketcher.Constraint("DistanceY", -1, 1, 0, 2, Q("21.4 mm")),
])
pocket8 = doc.addObject("PartDesign::Pocket", "Pocket007")
body.addObject(pocket8)
pocket8.Profile = sketch13
pocket8.Length = 0.5
pocket8.Reversed = True
doc.recompute()

fillet2 = doc.addObject("PartDesign::Fillet", "Fillet001")
body.addObject(fillet2)
fillet2.Base = (pocket8, edges_at(pocket8, [(0, 10.5, 21.4)]))
fillet2.Radius = 0.125

doc.recompute()
